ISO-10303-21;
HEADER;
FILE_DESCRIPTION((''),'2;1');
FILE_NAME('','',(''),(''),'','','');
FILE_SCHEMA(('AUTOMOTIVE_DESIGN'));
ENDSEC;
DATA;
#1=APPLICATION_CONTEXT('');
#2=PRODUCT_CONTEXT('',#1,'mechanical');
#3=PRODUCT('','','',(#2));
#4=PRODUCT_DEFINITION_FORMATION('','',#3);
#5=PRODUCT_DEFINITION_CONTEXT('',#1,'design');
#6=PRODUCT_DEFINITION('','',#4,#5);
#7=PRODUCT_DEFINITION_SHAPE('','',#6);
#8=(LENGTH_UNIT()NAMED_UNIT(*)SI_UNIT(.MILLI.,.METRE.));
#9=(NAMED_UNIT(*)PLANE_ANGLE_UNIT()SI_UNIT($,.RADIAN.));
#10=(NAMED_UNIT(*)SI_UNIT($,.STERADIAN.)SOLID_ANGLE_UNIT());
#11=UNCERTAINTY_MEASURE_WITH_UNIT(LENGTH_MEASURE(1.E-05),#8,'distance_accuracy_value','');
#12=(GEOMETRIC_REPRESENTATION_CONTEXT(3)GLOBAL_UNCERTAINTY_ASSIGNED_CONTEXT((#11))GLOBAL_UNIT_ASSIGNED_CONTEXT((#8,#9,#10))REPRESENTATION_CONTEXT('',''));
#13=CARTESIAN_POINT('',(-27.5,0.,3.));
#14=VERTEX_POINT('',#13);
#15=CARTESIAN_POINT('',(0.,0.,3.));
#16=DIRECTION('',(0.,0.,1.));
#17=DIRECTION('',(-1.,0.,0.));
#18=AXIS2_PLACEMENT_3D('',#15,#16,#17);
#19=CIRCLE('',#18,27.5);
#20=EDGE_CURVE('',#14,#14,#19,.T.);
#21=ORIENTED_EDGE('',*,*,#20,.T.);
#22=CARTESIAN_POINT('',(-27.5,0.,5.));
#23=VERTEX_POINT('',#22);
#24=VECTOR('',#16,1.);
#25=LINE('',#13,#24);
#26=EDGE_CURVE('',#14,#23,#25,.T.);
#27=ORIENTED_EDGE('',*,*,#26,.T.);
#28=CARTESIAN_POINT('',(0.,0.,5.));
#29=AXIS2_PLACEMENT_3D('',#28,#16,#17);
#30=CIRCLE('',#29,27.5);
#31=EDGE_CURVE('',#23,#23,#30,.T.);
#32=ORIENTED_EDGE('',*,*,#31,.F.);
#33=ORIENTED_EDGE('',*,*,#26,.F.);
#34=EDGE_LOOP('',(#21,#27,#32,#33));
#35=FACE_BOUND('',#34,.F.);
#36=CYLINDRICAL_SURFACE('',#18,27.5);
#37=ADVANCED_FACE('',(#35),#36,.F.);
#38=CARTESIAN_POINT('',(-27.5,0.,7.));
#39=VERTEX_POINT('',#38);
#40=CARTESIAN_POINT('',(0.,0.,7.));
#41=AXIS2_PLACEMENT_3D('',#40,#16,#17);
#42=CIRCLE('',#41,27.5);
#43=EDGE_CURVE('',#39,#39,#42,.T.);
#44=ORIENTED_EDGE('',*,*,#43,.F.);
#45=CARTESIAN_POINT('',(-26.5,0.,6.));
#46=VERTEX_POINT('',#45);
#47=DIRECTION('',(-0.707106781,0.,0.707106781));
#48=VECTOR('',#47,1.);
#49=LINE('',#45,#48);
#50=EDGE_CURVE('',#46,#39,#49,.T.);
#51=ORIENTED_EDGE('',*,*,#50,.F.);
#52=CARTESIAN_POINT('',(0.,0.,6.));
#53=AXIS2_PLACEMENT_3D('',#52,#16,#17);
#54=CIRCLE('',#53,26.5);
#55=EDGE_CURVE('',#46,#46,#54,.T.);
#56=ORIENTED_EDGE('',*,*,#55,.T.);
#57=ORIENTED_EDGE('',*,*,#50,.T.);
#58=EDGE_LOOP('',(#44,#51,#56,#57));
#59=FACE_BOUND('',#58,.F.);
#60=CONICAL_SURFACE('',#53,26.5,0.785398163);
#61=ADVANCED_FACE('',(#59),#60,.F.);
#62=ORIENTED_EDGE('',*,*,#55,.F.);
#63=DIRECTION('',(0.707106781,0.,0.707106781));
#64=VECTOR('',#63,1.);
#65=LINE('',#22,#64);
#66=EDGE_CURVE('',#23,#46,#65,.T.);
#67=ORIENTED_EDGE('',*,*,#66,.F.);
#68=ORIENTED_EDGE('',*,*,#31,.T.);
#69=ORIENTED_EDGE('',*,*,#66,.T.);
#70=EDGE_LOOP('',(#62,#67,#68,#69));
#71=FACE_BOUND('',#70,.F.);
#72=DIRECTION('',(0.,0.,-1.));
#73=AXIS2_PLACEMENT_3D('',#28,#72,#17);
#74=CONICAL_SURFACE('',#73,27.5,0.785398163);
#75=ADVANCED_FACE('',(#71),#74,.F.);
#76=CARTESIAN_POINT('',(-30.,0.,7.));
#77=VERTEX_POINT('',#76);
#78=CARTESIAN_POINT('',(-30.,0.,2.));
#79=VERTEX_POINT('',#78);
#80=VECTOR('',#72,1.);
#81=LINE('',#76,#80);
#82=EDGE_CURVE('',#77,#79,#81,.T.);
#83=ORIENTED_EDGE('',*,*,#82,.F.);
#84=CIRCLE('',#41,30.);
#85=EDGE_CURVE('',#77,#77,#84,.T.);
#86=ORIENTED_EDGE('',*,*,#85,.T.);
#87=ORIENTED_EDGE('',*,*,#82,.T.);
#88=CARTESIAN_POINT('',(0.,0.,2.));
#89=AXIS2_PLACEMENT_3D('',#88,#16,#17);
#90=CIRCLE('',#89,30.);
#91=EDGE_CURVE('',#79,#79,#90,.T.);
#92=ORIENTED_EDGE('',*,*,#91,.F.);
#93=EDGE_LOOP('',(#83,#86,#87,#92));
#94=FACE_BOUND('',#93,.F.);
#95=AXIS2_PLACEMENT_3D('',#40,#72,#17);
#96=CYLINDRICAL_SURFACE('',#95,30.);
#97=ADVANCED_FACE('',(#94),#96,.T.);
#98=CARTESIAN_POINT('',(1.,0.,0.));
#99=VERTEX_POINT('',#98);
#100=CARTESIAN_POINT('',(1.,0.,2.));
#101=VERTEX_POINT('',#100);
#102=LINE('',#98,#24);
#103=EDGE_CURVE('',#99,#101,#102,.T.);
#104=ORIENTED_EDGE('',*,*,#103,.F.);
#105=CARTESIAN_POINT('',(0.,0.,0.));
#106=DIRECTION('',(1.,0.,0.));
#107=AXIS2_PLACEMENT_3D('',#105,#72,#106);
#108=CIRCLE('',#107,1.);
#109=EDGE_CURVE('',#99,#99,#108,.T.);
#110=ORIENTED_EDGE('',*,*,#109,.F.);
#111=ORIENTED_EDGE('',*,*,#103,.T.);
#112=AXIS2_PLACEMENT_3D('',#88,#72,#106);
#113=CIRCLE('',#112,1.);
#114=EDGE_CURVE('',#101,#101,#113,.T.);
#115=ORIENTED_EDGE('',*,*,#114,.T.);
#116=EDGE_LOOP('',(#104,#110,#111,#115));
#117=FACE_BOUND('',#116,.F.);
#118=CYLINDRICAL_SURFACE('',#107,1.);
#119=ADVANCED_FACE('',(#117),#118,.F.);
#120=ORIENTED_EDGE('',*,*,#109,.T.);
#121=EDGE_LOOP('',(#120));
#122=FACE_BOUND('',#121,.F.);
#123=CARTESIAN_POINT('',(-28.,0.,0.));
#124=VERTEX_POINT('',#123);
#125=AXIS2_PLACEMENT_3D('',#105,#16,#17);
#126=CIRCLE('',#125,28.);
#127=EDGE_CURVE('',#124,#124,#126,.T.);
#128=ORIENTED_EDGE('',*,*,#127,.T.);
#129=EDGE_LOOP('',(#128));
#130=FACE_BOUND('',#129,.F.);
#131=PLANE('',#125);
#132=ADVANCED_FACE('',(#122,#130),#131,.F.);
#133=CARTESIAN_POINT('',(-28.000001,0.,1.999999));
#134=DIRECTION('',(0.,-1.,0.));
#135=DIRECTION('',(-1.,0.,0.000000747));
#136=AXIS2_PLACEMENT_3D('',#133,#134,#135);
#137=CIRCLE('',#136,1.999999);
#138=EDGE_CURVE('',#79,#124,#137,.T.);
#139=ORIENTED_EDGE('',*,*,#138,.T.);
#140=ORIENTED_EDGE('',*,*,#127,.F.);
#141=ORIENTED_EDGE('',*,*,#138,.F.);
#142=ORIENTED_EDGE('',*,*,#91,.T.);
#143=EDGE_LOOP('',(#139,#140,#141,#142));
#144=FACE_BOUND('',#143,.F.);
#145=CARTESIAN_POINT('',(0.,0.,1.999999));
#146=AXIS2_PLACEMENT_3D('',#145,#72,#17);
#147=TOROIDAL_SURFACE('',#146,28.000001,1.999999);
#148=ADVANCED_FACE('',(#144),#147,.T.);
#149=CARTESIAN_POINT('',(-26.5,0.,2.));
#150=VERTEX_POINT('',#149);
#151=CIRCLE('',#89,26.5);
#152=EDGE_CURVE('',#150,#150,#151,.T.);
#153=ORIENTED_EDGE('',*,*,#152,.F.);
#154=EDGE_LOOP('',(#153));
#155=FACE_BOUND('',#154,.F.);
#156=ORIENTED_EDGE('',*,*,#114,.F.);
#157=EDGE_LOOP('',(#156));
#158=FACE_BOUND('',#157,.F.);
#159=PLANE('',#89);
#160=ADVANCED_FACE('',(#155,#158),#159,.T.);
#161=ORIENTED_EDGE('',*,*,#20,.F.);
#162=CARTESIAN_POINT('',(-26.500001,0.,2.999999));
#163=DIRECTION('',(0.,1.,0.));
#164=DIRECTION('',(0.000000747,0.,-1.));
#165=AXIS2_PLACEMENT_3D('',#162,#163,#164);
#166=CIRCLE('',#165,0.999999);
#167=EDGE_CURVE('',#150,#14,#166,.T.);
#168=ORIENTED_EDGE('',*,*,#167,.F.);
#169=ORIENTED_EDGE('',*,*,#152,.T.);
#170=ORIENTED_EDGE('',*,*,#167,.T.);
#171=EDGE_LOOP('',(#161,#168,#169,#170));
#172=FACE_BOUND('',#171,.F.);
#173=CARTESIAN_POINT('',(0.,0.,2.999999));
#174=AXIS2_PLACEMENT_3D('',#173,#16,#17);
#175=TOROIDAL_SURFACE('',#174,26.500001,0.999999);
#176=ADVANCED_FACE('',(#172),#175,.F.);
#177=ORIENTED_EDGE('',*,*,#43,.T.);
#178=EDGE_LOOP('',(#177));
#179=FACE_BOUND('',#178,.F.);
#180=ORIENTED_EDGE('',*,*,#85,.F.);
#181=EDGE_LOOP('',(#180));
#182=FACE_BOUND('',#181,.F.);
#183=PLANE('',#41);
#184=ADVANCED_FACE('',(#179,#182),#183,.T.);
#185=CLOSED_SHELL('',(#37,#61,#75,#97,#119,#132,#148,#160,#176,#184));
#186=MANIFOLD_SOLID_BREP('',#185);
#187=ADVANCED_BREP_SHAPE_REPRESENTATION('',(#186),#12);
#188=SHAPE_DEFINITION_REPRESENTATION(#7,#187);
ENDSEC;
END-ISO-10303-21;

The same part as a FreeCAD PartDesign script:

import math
import FreeCAD as App
import Part
import Sketcher

doc = App.newDocument("Part")
body = doc.addObject("PartDesign::Body", "Body")

# Sketch on XZ plane
sketch1 = body.newObject("Sketcher::SketchObject", "Sketch")
sketch1.AttachmentSupport = (doc.getObject("XZ_Plane"), [""])
sketch1.MapMode = "FlatFace"
sketch1.addGeometry([
    Part.LineSegment(App.Vector(-28, 0, 0), App.Vector(0, 0, 0)),  # 0
    Part.LineSegment(App.Vector(0, 0, 0), App.Vector(0, 2, 0)),  # 1
    Part.LineSegment(App.Vector(0, 2, 0), App.Vector(-26.5, 2, 0)),  # 2
    Part.ArcOfCircle(Part.Circle(App.Vector(-26.5, 3, 0), App.Vector(0, 0, 1), 1), math.radians(180), math.radians(270)),  # 3
    Part.LineSegment(App.Vector(-27.5, 3, 0), App.Vector(-27.5, 5, 0)),  # 4
    Part.LineSegment(App.Vector(-27.5, 5, 0), App.Vector(-26.5, 6, 0)),  # 5
    Part.LineSegment(App.Vector(-26.5, 6, 0), App.Vector(-27.5, 7, 0)),  # 6
    Part.LineSegment(App.Vector(-27.5, 7, 0), App.Vector(-30, 7, 0)),  # 7
    Part.LineSegment(App.Vector(-30, 7, 0), App.Vector(-30, 2, 0)),  # 8
    Part.ArcOfCircle(Part.Circle(App.Vector(-28, 2, 0), App.Vector(0, 0, 1), 2), math.radians(180), math.radians(270)),  # 9
], False)
sketch1.addConstraint([
    Sketcher.Constraint("Coincident", 0, 2, 1, 1),
    Sketcher.Constraint("Coincident", 1, 2, 2, 1),
    Sketcher.Constraint("Tangent", 2, 2, 3, 2),
    Sketcher.Constraint("Tangent", 3, 1, 4, 1),
    Sketcher.Constraint("Coincident", 4, 2, 5, 1),
    Sketcher.Constraint("Coincident", 5, 2, 6, 1),
    Sketcher.Constraint("Coincident", 6, 2, 7, 1),
    Sketcher.Constraint("Coincident", 7, 2, 8, 1),
    Sketcher.Constraint("Tangent", 8, 2, 9, 1),
    Sketcher.Constraint("Tangent", 9, 2, 0, 1),
    Sketcher.Constraint("Horizontal", 0),
    Sketcher.Constraint("Vertical", 1),
    Sketcher.Constraint("Horizontal", 2),
    Sketcher.Constraint("Vertical", 4),
    Sketcher.Constraint("Horizontal", 7),
    Sketcher.Constraint("Vertical", 8),
    Sketcher.Constraint("Coincident", 0, 2, -1, 1),
    Sketcher.Constraint("Perpendicular", 5, 6),
    Sketcher.Constraint("Horizontal", 9, 3, 1, 2),
    Sketcher.Constraint("Vertical", 2, 2, 5, 2),
    Sketcher.Constraint("Vertical", 4, 2, 6, 2),
    Sketcher.Constraint("Equal", 1, 4),
    Sketcher.Constraint("Equal", 5, 6),
    Sketcher.Constraint("Radius", 3, 0.999999),
    Sketcher.Constraint("Radius", 9, 1.999999),
    Sketcher.Constraint("DistanceX", 0, 1, 0, 2, 28.0),
    Sketcher.Constraint("DistanceX", 2, 2, 2, 1, 26.5),
])
revolution = body.newObject("PartDesign::Revolution", "Revolution")
revolution.Profile = sketch1
revolution.ReferenceAxis = (sketch1, ["V_Axis"])
revolution.Angle = 360

# Sketch on XY plane
sketch2 = body.newObject("Sketcher::SketchObject", "Sketch001")
sketch2.AttachmentSupport = (doc.getObject("XY_Plane"), [""])
sketch2.MapMode = "FlatFace"
sketch2.addGeometry(Part.Circle(App.Vector(0, 0, 0), App.Vector(0, 0, 1), 1), False)
sketch2.addConstraint([
    Sketcher.Constraint("Coincident", 0, 3, -1, 1),
    Sketcher.Constraint("Diameter", 0, 2.0),
])
pocket1 = body.newObject("PartDesign::Pocket", "Pocket")
pocket1.Profile = sketch2
pocket1.Length = 25
pocket1.Reversed = True

doc.recompute()
